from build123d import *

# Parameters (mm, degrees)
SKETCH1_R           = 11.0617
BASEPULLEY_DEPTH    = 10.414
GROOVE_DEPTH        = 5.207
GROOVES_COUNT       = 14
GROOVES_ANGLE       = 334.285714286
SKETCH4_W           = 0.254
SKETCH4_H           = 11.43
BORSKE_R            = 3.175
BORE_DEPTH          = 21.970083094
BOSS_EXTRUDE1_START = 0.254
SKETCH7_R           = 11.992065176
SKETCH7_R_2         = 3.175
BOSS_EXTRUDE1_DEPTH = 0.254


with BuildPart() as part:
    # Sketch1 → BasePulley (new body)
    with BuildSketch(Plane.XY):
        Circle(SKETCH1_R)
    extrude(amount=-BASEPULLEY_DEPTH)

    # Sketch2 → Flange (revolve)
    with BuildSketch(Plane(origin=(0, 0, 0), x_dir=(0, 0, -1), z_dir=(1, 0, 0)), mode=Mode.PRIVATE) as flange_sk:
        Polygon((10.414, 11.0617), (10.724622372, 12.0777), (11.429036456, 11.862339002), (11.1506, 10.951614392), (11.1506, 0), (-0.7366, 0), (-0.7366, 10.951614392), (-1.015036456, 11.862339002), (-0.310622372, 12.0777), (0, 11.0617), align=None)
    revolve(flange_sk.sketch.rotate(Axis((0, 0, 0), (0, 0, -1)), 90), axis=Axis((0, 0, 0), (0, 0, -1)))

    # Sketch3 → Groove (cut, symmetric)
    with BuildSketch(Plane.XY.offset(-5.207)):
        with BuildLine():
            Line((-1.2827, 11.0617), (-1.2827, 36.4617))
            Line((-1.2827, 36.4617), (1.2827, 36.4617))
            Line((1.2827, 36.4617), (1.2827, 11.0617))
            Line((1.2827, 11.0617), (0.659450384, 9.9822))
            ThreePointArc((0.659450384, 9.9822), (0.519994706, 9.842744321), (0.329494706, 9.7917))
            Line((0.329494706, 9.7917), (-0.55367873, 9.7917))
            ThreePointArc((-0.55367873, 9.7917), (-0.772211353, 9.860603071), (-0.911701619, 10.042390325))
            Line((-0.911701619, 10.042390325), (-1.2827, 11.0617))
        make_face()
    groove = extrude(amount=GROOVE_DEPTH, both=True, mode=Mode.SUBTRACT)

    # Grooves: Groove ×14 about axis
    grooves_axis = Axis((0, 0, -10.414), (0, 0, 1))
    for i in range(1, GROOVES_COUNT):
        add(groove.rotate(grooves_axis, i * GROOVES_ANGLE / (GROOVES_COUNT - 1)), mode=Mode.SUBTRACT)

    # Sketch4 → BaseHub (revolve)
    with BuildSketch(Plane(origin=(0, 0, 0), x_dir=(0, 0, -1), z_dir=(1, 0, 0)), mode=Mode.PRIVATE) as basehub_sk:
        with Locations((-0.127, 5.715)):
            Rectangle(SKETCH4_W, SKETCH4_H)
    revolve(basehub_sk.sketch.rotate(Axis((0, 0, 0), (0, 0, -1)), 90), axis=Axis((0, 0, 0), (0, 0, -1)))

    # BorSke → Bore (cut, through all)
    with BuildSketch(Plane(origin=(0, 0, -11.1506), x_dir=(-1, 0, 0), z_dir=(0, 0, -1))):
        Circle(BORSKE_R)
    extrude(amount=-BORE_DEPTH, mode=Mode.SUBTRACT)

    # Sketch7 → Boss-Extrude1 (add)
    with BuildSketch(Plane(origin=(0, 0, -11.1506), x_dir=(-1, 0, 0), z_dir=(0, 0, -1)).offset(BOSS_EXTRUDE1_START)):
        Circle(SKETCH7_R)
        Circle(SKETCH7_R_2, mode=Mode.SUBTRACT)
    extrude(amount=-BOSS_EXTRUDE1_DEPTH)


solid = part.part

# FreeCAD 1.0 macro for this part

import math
import FreeCAD as App
import Part
import Sketcher
from FreeCAD import Vector
Q = App.Units.Quantity

doc = App.newDocument("Part")
params = doc.addObject("Spreadsheet::Sheet", "Params")
for row, (alias, value) in enumerate([
    ("sketch1_diameter", "0.871 in"),
    ("pad1_length", "0.41 in"),
    ("sketch2_height", "0.41 in"),
    ("sketch2_height2", "0.468 in"),
    ("sketch2_length", "0.029 in"),
    ("revolution_angle", "360 deg"),
    ("sketch3_height", "1 in"),
    ("sketch3_radius", "0.015 in"),
    ("sketch3_width", "0.101 in"),
    ("pocket1_length", "0.41 in"),
    ("sketch4_width", "0.45 in"),
    ("sketch4_height", "0.01 in"),
    ("revolution2_angle", "360 deg"),
    ("sketch5_diameter", "0.25 in"),
    ("sketch6_diameter", "0.25 in"),
    ("pad2_length", "0.01 in"),
], start=1):
    params.set(f"A{row}", alias)
    params.set(f"B{row}", "=" + value)
    params.setAlias(f"B{row}", alias)

body = doc.addObject("PartDesign::Body", "Body")

# Sketch on XY plane
sketch1 = body.newObject("Sketcher::SketchObject", "Sketch")
sketch1.AttachmentSupport = (doc.getObject("XY_Plane"), [""])
sketch1.MapMode = "FlatFace"
sketch1.addGeometry(Part.Circle(Vector(0, 0, 0), Vector(0, 0, 1), 11), False)
sketch1.addConstraint([
    Sketcher.Constraint("Coincident", 0, 3, -1, 1),
    Sketcher.Constraint("Diameter", 0, Q("0.871 in")),
])
sketch1.setExpression("Constraints[1]", "Params.sketch1_diameter")
pad1 = body.newObject("PartDesign::Pad", "Pad")
pad1.Profile = sketch1
pad1.setExpression("Length", "Params.pad1_length")
pad1.Reversed = True

# Sketch on YZ plane
sketch2 = body.newObject("Sketcher::SketchObject", "Sketch001")
sketch2.AttachmentSupport = (doc.getObject("YZ_Plane"), [""])
sketch2.MapMode = "FlatFace"
sketch2.addGeometry([
    Part.LineSegment(Vector(12.1, -10.7, 0), Vector(11.1, -10.4, 0)),  # 0
    Part.LineSegment(Vector(11.1, -10.4, 0), Vector(11.1, 0, 0)),  # 1
    Part.LineSegment(Vector(11.1, 0, 0), Vector(12.1, 0.3, 0)),  # 2
    Part.LineSegment(Vector(12.1, 0.3, 0), Vector(11.9, 1, 0)),  # 3
    Part.LineSegment(Vector(11.9, 1, 0), Vector(11, 0.7, 0)),  # 4
    Part.LineSegment(Vector(11, 0.7, 0), Vector(0, 0.7, 0)),  # 5
    Part.LineSegment(Vector(0, 0.7, 0), Vector(0, -11.2, 0)),  # 6
    Part.LineSegment(Vector(0, -11.2, 0), Vector(11, -11.2, 0)),  # 7
    Part.LineSegment(Vector(11, -11.2, 0), Vector(11.9, -11.4, 0)),  # 8
    Part.LineSegment(Vector(11.9, -11.4, 0), Vector(12.1, -10.7, 0)),  # 9
], False)
sketch2.addConstraint([
    Sketcher.Constraint("Coincident", 0, 2, 1, 1),
    Sketcher.Constraint("Coincident", 1, 2, 2, 1),
    Sketcher.Constraint("Coincident", 2, 2, 3, 1),
    Sketcher.Constraint("Coincident", 3, 2, 4, 1),
    Sketcher.Constraint("Coincident", 4, 2, 5, 1),
    Sketcher.Constraint("Coincident", 5, 2, 6, 1),
    Sketcher.Constraint("Coincident", 6, 2, 7, 1),
    Sketcher.Constraint("Coincident", 7, 2, 8, 1),
    Sketcher.Constraint("Coincident", 8, 2, 9, 1),
    Sketcher.Constraint("Coincident", 9, 2, 0, 1),
    Sketcher.Constraint("Vertical", 1),
    Sketcher.Constraint("Horizontal", 5),
    Sketcher.Constraint("Vertical", 6),
    Sketcher.Constraint("Horizontal", 7),
    Sketcher.Constraint("PointOnObject", 1, 2, -1),
    Sketcher.Constraint("PointOnObject", 5, 2, -2),
    Sketcher.Constraint("Perpendicular", 2, 3),
    Sketcher.Constraint("Perpendicular", 3, 4),
    Sketcher.Constraint("Parallel", 0, 8),
    Sketcher.Constraint("Perpendicular", 8, 9),
    Sketcher.Constraint("Vertical", 4, 2, 7, 2),
    Sketcher.Constraint("Vertical", 3, 2, 8, 2),
    Sketcher.Constraint("Vertical", 2, 2, 9, 2),
    Sketcher.Constraint("Equal", 0, 2),
    Sketcher.Constraint("Angle", 0, Q("163 deg")),
    Sketcher.Constraint("DistanceY", 1, 1, 1, 2, Q("0.41 in")),
    Sketcher.Constraint("DistanceY", 6, 2, 6, 1, Q("0.468 in")),
    Sketcher.Constraint("DistanceX", 1, 2, 2, 2, Q("0.04 in")),
    Sketcher.Constraint("Distance", 3, Q("0.029 in")),
    Sketcher.Constraint("DistanceX", -1, 1, 0, 2, Q("0.4355 in")),
])
sketch2.setExpression("Constraints[25]", "Params.sketch2_height")
sketch2.setExpression("Constraints[26]", "Params.sketch2_height2")
sketch2.setExpression("Constraints[28]", "Params.sketch2_length")
revolution = body.newObject("PartDesign::Revolution", "Revolution")
revolution.Profile = sketch2
revolution.ReferenceAxis = (sketch2, ["V_Axis"])
revolution.setExpression("Angle", "Params.revolution_angle")

# Sketch on XY plane
sketch3 = body.newObject("Sketcher::SketchObject", "Sketch002")
sketch3.AttachmentSupport = (doc.getObject("XY_Plane"), [""])
sketch3.MapMode = "FlatFace"
sketch3.AttachmentOffset = App.Placement(Vector(0, 0, -0.205 * 25.4), App.Rotation())
sketch3.addGeometry([
    Part.LineSegment(Vector(-1.28, 36.46, 0), Vector(-1.28, 11.06, 0)),  # 0
    Part.LineSegment(Vector(-1.28, 11.06, 0), Vector(-0.91, 10.04, 0)),  # 1
    Part.ArcOfCircle(Part.Circle(Vector(-0.55, 10.17, 0), Vector(0, 0, 1), 0.38), math.radians(-160), math.radians(-90)),  # 2
    Part.LineSegment(Vector(-0.55, 9.79, 0), Vector(0.33, 9.79, 0)),  # 3
    Part.ArcOfCircle(Part.Circle(Vector(0.33, 10.17, 0), Vector(0, 0, 1), 0.38), math.radians(-90), math.radians(-30)),  # 4
    Part.LineSegment(Vector(0.66, 9.98, 0), Vector(1.28, 11.06, 0)),  # 5
    Part.LineSegment(Vector(1.28, 11.06, 0), Vector(1.28, 36.46, 0)),  # 6
    Part.LineSegment(Vector(1.28, 36.46, 0), Vector(-1.28, 36.46, 0)),  # 7
], False)
sketch3.addConstraint([
    Sketcher.Constraint("Coincident", 0, 2, 1, 1),
    Sketcher.Constraint("Tangent", 1, 2, 2, 1),
    Sketcher.Constraint("Tangent", 2, 2, 3, 1),
    Sketcher.Constraint("Tangent", 3, 2, 4, 1),
    Sketcher.Constraint("Tangent", 4, 2, 5, 1),
    Sketcher.Constraint("Coincident", 5, 2, 6, 1),
    Sketcher.Constraint("Coincident", 6, 2, 7, 1),
    Sketcher.Constraint("Coincident", 7, 2, 0, 1),
    Sketcher.Constraint("Vertical", 0),
    Sketcher.Constraint("Horizontal", 3),
    Sketcher.Constraint("Vertical", 6),
    Sketcher.Constraint("Horizontal", 7),
    Sketcher.Constraint("Equal", 2, 4),
    Sketcher.Constraint("Symmetric", 0, 2, 5, 2, -2),
    Sketcher.Constraint("DistanceY", 0, 2, 0, 1, Q("1 in")),
    Sketcher.Constraint("Angle", 1, Q("-70 deg")),
    Sketcher.Constraint("Angle", 5, Q("60 deg")),
    Sketcher.Constraint("Radius", 2, Q("0.015 in")),
    Sketcher.Constraint("DistanceX", 7, 2, 7, 1, Q("0.101 in")),
    Sketcher.Constraint("DistanceY", 2, 2, 0, 2, Q("0.05 in")),
    Sketcher.Constraint("DistanceY", -1, 1, 4, 2, Q("0.393 in")),
])
sketch3.setExpression("Constraints[14]", "Params.sketch3_height")
sketch3.setExpression("Constraints[17]", "Params.sketch3_radius")
sketch3.setExpression("Constraints[18]", "Params.sketch3_width")
pocket1 = body.newObject("PartDesign::Pocket", "Pocket")
pocket1.Profile = sketch3
pocket1.setExpression("Length", "Params.pocket1_length")
pocket1.Midplane = True
doc.recompute()

polarpattern = body.newObject("PartDesign::PolarPattern", "PolarPattern")
polarpattern.Originals = [pocket1]
polarpattern.Axis = (doc.getObject("Z_Axis"), [""])
polarpattern.Angle = 360
polarpattern.Occurrences = 14
body.Tip = polarpattern

# Sketch on YZ plane
sketch4 = body.newObject("Sketcher::SketchObject", "Sketch003")
sketch4.AttachmentSupport = (doc.getObject("YZ_Plane"), [""])
sketch4.MapMode = "FlatFace"
sketch4.addGeometry([
    Part.LineSegment(Vector(11.43, 0.25, 0), Vector(0, 0.25, 0)),
    Part.LineSegment(Vector(0, 0.25, 0), Vector(0, 0, 0)),
    Part.LineSegment(Vector(0, 0, 0), Vector(11.43, 0, 0)),
    Part.LineSegment(Vector(11.43, 0, 0), Vector(11.43, 0.25, 0)),
], False)
sketch4.addConstraint([
    Sketcher.Constraint("Coincident", 0, 2, 1, 1),
    Sketcher.Constraint("Coincident", 1, 2, 2, 1),
    Sketcher.Constraint("Coincident", 2, 2, 3, 1),
    Sketcher.Constraint("Coincident", 3, 2, 0, 1),
    Sketcher.Constraint("Horizontal", 0),
    Sketcher.Constraint("Vertical", 1),
    Sketcher.Constraint("Horizontal", 2),
    Sketcher.Constraint("Vertical", 3),
    Sketcher.Constraint("Coincident", 1, 2, -1, 1),
    Sketcher.Constraint("DistanceX", 0, 2, 0, 1, Q("0.45 in")),
    Sketcher.Constraint("DistanceY", 1, 2, 1, 1, Q("0.01 in")),
])
sketch4.setExpression("Constraints[9]", "Params.sketch4_width")
sketch4.setExpression("Constraints[10]", "Params.sketch4_height")
revolution2 = body.newObject("PartDesign::Revolution", "Revolution001")
revolution2.Profile = sketch4
revolution2.ReferenceAxis = (sketch4, ["V_Axis"])
revolution2.setExpression("Angle", "Params.revolution2_angle")

# Sketch on XY plane
sketch5 = body.newObject("Sketcher::SketchObject", "Sketch004")
sketch5.AttachmentSupport = (doc.getObject("XY_Plane"), [""])
sketch5.MapMode = "FlatFace"
sketch5.AttachmentOffset = App.Placement(Vector(0, 0, -0.439 * 25.4), App.Rotation())
sketch5.addGeometry(Part.Circle(Vector(0, 0, 0), Vector(0, 0, 1), 3.2), False)
sketch5.addConstraint([
    Sketcher.Constraint("Coincident", 0, 3, -1, 1),
    Sketcher.Constraint("Diameter", 0, Q("0.25 in")),
])
sketch5.setExpression("Constraints[1]", "Params.sketch5_diameter")
pocket2 = body.newObject("PartDesign::Pocket", "Pocket001")
pocket2.Profile = sketch5
pocket2.Type = "ThroughAll"
pocket2.Reversed = True

# Sketch on XY plane
sketch6 = body.newObject("Sketcher::SketchObject", "Sketch005")
sketch6.AttachmentSupport = (doc.getObject("XY_Plane"), [""])
sketch6.MapMode = "FlatFace"
sketch6.AttachmentOffset = App.Placement(Vector(0, 0, -0.449 * 25.4), App.Rotation())
sketch6.addGeometry([
    Part.Circle(Vector(0, 0, 0), Vector(0, 0, 1), 12),
    Part.Circle(Vector(0, 0, 0), Vector(0, 0, 1), 3.2),
], False)
sketch6.addConstraint([
    Sketcher.Constraint("Coincident", 0, 3, -1, 1),
    Sketcher.Constraint("Coincident", 1, 3, -1, 1),
    Sketcher.Constraint("Diameter", 1, Q("0.25 in")),
    Sketcher.Constraint("Diameter", 0, 23.98413),
])
sketch6.setExpression("Constraints[2]", "Params.sketch6_diameter")
pad2 = body.newObject("PartDesign::Pad", "Pad001")
pad2.Profile = sketch6
pad2.setExpression("Length", "Params.pad2_length")

doc.recompute()
